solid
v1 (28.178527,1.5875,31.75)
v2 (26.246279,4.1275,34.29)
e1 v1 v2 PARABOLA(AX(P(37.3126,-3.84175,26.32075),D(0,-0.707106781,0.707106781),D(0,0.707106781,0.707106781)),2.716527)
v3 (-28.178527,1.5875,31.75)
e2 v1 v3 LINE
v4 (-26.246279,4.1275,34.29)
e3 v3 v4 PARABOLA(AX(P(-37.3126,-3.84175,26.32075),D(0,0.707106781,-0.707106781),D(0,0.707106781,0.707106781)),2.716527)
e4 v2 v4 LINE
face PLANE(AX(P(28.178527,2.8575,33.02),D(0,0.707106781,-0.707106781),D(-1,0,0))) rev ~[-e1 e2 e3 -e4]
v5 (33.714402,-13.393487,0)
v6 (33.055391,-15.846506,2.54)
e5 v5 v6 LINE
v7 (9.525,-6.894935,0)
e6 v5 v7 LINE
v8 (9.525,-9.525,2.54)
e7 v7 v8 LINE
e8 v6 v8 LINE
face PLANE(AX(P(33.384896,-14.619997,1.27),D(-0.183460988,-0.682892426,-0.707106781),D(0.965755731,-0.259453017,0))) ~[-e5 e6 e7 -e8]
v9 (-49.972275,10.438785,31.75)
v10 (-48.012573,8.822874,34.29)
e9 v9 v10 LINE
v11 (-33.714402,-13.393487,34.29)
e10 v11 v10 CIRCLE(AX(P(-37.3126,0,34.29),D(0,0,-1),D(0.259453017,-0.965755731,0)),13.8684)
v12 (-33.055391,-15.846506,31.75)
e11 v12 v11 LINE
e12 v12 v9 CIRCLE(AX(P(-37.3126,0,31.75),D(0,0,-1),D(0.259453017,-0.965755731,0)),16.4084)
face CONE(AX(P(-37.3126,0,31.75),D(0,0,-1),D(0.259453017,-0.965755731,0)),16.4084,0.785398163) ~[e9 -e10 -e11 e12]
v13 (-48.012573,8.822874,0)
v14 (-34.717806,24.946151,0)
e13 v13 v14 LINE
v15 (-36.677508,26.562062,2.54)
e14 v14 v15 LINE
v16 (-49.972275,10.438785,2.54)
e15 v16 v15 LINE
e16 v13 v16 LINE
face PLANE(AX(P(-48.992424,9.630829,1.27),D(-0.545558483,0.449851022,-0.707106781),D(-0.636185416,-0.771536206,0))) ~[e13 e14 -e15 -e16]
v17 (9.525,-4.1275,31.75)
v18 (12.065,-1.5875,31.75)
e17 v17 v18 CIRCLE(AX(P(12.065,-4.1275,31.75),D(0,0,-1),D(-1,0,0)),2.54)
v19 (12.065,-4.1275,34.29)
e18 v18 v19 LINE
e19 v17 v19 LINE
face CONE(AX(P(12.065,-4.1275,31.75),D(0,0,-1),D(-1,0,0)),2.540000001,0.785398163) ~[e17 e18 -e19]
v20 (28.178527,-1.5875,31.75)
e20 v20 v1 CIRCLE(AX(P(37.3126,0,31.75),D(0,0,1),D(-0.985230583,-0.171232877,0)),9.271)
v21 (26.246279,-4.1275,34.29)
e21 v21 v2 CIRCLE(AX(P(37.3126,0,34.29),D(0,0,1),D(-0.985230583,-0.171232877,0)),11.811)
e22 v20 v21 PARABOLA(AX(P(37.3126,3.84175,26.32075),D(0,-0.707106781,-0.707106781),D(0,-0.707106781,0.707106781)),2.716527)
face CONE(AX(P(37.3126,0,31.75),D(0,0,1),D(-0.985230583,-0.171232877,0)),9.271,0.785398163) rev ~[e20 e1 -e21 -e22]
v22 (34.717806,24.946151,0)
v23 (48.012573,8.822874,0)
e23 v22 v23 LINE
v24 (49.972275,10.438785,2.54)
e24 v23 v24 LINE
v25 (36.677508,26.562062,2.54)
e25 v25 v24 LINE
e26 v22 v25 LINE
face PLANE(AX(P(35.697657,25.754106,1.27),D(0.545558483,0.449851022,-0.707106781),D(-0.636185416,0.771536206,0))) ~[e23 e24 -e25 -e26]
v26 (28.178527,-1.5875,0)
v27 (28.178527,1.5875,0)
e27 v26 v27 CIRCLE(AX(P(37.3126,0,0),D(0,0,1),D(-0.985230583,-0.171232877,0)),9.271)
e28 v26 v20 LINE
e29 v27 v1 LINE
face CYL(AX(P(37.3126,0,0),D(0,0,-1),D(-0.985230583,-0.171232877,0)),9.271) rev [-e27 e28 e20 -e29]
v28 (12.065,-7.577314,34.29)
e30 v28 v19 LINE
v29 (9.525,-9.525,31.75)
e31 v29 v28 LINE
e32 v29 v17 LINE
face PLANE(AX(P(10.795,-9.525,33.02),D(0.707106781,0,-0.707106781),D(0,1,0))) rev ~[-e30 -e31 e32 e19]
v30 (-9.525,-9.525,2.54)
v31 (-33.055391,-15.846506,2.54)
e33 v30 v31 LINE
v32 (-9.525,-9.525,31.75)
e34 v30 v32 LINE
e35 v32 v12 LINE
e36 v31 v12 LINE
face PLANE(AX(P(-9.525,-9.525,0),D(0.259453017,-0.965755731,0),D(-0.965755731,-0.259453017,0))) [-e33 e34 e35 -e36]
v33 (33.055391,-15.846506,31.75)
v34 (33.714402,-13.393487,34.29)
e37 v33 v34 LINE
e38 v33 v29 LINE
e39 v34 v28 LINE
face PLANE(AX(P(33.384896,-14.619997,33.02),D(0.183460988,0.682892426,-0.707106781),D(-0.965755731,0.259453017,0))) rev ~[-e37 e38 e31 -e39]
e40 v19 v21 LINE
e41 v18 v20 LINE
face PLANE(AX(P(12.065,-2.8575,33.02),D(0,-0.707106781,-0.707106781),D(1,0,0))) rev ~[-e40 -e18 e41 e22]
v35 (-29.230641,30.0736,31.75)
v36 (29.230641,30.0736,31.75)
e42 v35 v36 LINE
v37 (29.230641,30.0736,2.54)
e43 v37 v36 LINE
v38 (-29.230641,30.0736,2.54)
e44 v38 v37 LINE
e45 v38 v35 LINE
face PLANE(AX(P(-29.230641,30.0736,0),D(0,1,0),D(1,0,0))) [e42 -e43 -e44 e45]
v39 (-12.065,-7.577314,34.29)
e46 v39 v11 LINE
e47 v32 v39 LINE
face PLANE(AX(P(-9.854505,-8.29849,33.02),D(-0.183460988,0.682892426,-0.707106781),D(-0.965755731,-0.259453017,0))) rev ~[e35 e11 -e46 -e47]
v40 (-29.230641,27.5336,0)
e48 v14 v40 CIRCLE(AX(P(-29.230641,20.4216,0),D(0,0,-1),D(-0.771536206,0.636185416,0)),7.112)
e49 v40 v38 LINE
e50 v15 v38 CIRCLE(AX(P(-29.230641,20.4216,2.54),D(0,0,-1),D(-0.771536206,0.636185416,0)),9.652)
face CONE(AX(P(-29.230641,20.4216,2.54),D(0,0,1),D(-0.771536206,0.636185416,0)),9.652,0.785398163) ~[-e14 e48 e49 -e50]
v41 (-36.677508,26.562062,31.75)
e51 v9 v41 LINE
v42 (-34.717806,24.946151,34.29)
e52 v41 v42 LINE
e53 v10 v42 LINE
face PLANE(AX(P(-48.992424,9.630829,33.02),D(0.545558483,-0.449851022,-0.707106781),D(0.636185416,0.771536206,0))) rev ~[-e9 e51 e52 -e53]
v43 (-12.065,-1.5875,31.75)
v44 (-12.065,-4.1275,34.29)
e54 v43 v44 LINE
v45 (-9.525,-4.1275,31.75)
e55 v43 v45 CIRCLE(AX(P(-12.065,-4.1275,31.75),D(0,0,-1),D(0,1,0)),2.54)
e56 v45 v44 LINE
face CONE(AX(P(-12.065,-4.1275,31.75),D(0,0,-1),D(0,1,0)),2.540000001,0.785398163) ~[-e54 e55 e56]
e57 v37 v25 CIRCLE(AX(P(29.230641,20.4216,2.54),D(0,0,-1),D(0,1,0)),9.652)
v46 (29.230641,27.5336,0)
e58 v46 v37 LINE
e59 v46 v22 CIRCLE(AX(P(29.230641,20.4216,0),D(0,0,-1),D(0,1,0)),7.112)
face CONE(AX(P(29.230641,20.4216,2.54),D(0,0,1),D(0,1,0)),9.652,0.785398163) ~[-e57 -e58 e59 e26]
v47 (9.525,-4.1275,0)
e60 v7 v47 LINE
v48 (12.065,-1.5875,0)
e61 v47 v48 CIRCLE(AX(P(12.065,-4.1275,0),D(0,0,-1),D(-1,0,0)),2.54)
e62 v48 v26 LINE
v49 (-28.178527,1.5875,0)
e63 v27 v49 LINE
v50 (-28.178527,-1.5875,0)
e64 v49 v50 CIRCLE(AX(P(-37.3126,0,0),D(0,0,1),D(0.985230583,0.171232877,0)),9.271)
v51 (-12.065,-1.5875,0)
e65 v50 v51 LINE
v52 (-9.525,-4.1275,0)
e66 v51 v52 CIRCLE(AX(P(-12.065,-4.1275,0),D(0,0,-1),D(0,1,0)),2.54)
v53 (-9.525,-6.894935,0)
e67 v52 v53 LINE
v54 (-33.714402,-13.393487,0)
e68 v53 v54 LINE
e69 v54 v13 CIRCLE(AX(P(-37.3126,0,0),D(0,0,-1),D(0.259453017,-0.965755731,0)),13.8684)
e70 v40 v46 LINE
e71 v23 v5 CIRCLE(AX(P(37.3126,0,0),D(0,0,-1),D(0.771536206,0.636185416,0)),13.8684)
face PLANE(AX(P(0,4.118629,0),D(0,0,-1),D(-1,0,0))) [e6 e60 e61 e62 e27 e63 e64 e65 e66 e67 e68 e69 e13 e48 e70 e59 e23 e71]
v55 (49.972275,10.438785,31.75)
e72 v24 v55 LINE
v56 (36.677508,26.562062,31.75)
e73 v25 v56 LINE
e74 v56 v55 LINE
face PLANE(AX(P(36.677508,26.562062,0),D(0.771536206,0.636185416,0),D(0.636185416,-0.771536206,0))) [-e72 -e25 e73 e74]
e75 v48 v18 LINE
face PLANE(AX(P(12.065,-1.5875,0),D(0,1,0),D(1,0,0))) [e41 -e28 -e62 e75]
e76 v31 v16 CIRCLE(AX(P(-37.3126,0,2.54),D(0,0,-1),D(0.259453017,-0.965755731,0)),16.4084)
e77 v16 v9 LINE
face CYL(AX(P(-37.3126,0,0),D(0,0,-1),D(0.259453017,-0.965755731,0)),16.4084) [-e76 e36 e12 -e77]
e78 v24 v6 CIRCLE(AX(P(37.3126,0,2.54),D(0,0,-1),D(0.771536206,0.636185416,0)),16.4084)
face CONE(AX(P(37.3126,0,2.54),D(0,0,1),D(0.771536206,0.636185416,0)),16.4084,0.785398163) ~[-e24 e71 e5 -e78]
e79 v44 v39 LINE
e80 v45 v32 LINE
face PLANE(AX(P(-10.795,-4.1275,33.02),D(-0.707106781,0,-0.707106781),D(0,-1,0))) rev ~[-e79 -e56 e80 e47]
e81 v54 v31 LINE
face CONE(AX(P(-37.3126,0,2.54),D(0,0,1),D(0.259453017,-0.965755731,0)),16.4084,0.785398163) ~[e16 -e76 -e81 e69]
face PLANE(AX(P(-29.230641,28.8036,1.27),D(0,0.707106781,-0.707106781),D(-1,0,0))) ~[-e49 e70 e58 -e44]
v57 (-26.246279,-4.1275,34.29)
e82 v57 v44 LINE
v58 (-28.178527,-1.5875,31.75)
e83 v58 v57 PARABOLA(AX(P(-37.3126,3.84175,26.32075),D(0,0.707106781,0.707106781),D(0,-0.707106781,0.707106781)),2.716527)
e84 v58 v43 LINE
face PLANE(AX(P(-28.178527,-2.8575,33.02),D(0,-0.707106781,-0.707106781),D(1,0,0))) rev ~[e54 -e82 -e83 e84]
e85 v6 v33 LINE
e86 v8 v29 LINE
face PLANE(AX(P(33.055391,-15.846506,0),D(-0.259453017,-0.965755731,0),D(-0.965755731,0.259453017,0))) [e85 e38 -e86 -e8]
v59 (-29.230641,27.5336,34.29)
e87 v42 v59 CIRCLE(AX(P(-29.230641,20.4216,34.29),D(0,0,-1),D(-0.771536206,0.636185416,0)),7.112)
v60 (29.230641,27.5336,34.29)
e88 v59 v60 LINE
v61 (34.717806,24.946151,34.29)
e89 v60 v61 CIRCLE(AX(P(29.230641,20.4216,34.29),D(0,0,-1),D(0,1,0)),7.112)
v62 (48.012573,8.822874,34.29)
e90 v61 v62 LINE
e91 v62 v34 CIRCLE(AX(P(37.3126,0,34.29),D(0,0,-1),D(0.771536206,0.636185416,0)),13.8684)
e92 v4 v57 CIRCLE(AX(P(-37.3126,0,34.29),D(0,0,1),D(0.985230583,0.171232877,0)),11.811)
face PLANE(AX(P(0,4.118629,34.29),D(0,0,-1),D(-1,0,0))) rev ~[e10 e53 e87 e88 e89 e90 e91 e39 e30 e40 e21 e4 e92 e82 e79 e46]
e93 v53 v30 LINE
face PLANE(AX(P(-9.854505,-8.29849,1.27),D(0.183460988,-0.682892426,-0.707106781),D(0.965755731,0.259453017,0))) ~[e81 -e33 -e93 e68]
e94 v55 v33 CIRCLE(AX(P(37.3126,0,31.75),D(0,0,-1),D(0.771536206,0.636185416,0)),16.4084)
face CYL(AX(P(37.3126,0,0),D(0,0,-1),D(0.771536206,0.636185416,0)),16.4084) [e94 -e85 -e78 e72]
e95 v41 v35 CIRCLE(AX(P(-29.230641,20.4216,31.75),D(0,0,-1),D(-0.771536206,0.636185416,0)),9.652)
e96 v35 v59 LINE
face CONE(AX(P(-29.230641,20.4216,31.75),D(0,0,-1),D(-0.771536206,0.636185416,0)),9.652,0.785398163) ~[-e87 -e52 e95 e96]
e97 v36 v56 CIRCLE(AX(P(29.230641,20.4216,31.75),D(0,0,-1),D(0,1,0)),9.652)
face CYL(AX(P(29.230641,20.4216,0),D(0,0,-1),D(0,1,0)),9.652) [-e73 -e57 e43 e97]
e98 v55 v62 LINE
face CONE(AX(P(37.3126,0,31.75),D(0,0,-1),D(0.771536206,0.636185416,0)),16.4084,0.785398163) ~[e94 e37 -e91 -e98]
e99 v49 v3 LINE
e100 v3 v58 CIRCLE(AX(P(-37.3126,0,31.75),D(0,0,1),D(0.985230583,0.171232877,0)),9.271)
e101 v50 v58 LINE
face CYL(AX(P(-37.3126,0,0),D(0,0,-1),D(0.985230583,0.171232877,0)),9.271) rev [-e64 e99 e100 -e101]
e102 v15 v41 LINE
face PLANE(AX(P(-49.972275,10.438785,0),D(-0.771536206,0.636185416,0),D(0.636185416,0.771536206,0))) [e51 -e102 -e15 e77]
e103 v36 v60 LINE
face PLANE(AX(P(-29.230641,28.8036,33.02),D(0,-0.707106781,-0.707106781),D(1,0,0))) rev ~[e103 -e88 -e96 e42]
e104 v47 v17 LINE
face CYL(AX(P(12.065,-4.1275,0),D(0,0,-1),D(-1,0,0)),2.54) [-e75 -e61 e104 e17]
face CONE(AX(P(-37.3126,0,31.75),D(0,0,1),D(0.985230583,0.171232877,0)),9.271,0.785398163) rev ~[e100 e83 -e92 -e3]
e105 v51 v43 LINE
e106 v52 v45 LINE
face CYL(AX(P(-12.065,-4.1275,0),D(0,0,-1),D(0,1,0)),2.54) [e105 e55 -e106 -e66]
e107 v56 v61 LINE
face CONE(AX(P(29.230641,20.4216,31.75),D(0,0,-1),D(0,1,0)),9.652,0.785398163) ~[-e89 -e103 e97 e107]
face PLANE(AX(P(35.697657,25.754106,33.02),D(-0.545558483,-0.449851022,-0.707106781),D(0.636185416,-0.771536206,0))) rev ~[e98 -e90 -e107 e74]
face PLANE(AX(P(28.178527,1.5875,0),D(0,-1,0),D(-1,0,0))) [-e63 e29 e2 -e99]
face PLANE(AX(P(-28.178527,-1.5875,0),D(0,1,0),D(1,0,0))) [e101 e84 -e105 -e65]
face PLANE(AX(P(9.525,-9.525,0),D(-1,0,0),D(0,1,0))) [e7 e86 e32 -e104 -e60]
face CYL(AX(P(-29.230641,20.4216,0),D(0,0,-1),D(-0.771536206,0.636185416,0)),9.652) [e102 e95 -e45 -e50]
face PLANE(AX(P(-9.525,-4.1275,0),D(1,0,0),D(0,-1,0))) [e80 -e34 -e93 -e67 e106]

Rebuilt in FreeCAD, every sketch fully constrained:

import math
import FreeCAD as App
import Part
import Sketcher

V = App.Vector
Q = App.Units.Quantity


def edges_at(feature, points):
    """Names of the edges that pass closest to the given points."""
    edges = feature.Shape.Edges
    near = lambda p: min(range(len(edges)), key=lambda i: edges[i].distToShape(Part.Vertex(*p))[0])
    return sorted({f"Edge{near(p) + 1}" for p in points})

doc = App.newDocument("Part")
body = doc.addObject("PartDesign::Body", "Body")

# Sketch on XY plane
sketch1 = body.newObject("Sketcher::SketchObject", "Sketch")
sketch1.AttachmentSupport = (doc.getObject("XY_Plane"), [""])
sketch1.MapMode = "FlatFace"
sketch1.addGeometry(Part.LineSegment(V(29.230641, 30.0736, 0), V(-29.230641, 30.0736, 0)), False)
sketch1.addGeometry(Part.ArcOfCircle(Part.Circle(V(-29.230641, 20.4216, 0), V(0, 0, 1), 9.652), math.radians(90), math.radians(140.49204)), False)
sketch1.addGeometry(Part.LineSegment(V(-36.677508, 26.562062, 0), V(-49.972275, 10.438785, 0)), False)
sketch1.addGeometry(Part.ArcOfCircle(Part.Circle(V(-37.3126, 0, 0), V(0, 0, 1), 16.4084), math.radians(140.49204), math.radians(285.037609)), False)
sketch1.addGeometry(Part.LineSegment(V(-33.055391, -15.846506, 0), V(-9.525, -9.525, 0)), False)
sketch1.addGeometry(Part.LineSegment(V(-9.525, -9.525, 0), V(-9.525, -4.1275, 0)), False)
sketch1.addGeometry(Part.ArcOfCircle(Part.Circle(V(-12.065, -4.1275, 0), V(0, 0, 1), 2.54), math.radians(0), math.radians(90)), False)
sketch1.addGeometry(Part.LineSegment(V(-12.065, -1.5875, 0), V(-28.178527, -1.5875, 0)), False)
sketch1.addGeometry(Part.ArcOfCircle(Part.Circle(V(-37.3126, 0, 0), V(0, 0, 1), 9.271), math.radians(9.859509), math.radians(350.140491)), False)
sketch1.addGeometry(Part.LineSegment(V(-28.178527, 1.5875, 0), V(28.178527, 1.5875, 0)), False)
sketch1.addGeometry(Part.ArcOfCircle(Part.Circle(V(37.3126, 0, 0), V(0, 0, 1), 9.271), math.radians(-170.140491), math.radians(170.140491)), False)
sketch1.addGeometry(Part.LineSegment(V(28.178527, -1.5875, 0), V(12.065, -1.5875, 0)), False)
sketch1.addGeometry(Part.ArcOfCircle(Part.Circle(V(12.065, -4.1275, 0), V(0, 0, 1), 2.54), math.radians(90), math.radians(180)), False)
sketch1.addGeometry(Part.LineSegment(V(9.525, -4.1275, 0), V(9.525, -9.525, 0)), False)
sketch1.addGeometry(Part.LineSegment(V(9.525, -9.525, 0), V(33.055391, -15.846506, 0)), False)
sketch1.addGeometry(Part.ArcOfCircle(Part.Circle(V(37.3126, 0, 0), V(0, 0, 1), 16.4084), math.radians(-105.037609), math.radians(39.50796)), False)
sketch1.addGeometry(Part.LineSegment(V(49.972275, 10.438785, 0), V(36.677508, 26.562062, 0)), False)
sketch1.addGeometry(Part.ArcOfCircle(Part.Circle(V(29.230641, 20.4216, 0), V(0, 0, 1), 9.652), math.radians(39.50796), math.radians(90)), False)
sketch1.addConstraint(Sketcher.Constraint("Tangent", 0, 2, 1, 1))
sketch1.addConstraint(Sketcher.Constraint("Tangent", 1, 2, 2, 1))
sketch1.addConstraint(Sketcher.Constraint("Tangent", 2, 2, 3, 1))
sketch1.addConstraint(Sketcher.Constraint("Tangent", 3, 2, 4, 1))
sketch1.addConstraint(Sketcher.Constraint("Coincident", 4, 2, 5, 1))
sketch1.addConstraint(Sketcher.Constraint("Tangent", 5, 2, 6, 1))
sketch1.addConstraint(Sketcher.Constraint("Tangent", 6, 2, 7, 1))
sketch1.addConstraint(Sketcher.Constraint("Coincident", 7, 2, 8, 2))
sketch1.addConstraint(Sketcher.Constraint("Coincident", 8, 1, 9, 1))
sketch1.addConstraint(Sketcher.Constraint("Coincident", 9, 2, 10, 2))
sketch1.addConstraint(Sketcher.Constraint("Coincident", 10, 1, 11, 1))
sketch1.addConstraint(Sketcher.Constraint("Tangent", 11, 2, 12, 1))
sketch1.addConstraint(Sketcher.Constraint("Tangent", 12, 2, 13, 1))
sketch1.addConstraint(Sketcher.Constraint("Coincident", 13, 2, 14, 1))
sketch1.addConstraint(Sketcher.Constraint("Tangent", 14, 2, 15, 1))
sketch1.addConstraint(Sketcher.Constraint("Tangent", 15, 2, 16, 1))
sketch1.addConstraint(Sketcher.Constraint("Tangent", 16, 2, 17, 1))
sketch1.addConstraint(Sketcher.Constraint("Tangent", 17, 2, 0, 1))
sketch1.addConstraint(Sketcher.Constraint("Horizontal", 0))
sketch1.addConstraint(Sketcher.Constraint("Vertical", 5))
sketch1.addConstraint(Sketcher.Constraint("Horizontal", 7))
sketch1.addConstraint(Sketcher.Constraint("Horizontal", 9))
sketch1.addConstraint(Sketcher.Constraint("Horizontal", 11))
sketch1.addConstraint(Sketcher.Constraint("Vertical", 13))
sketch1.addConstraint(Sketcher.Constraint("Coincident", 8, 3, 3, 3))
sketch1.addConstraint(Sketcher.Constraint("Coincident", 15, 3, 10, 3))
sketch1.addConstraint(Sketcher.Constraint("Equal", 8, 10))
sketch1.addConstraint(Sketcher.Constraint("Equal", 6, 12))
sketch1.addConstraint(Sketcher.Constraint("Equal", 3, 15))
sketch1.addConstraint(Sketcher.Constraint("Equal", 1, 17))
sketch1.addConstraint(Sketcher.Constraint("Symmetric", 3, 3, 10, 3, -1, 1))
sketch1.addConstraint(Sketcher.Constraint("Symmetric", 6, 3, 12, 3, -2))
sketch1.addConstraint(Sketcher.Constraint("Symmetric", 3, 2, 14, 2, -2))
sketch1.addConstraint(Sketcher.Constraint("Horizontal", 2, 2, 15, 2))
sketch1.addConstraint(Sketcher.Constraint("Vertical", 7, 2, 8, 1))
sketch1.addConstraint(Sketcher.Constraint("Radius", 6, Q("0.1 in")))
sketch1.addConstraint(Sketcher.Constraint("Radius", 1, Q("0.38 in")))
sketch1.addConstraint(Sketcher.Constraint("Radius", 3, Q("0.646 in")))
sketch1.addConstraint(Sketcher.Constraint("Radius", 8, Q("0.365 in")))
sketch1.addConstraint(Sketcher.Constraint("DistanceX", 6, 3, 12, 3, Q("0.95 in")))
sketch1.addConstraint(Sketcher.Constraint("DistanceY", 5, 1, 5, 2, Q("0.2125 in")))
sketch1.addConstraint(Sketcher.Constraint("DistanceY", -1, 1, 1, 3, Q("0.804 in")))
sketch1.addConstraint(Sketcher.Constraint("DistanceX", 3, 3, -1, 1, Q("1.469 in")))
sketch1.addConstraint(Sketcher.Constraint("DistanceY", 4, 2, -1, 1, Q("0.375 in")))
sketch1.addConstraint(Sketcher.Constraint("DistanceX", 0, 2, 0, 1, 58.461282))
pad1 = body.newObject("PartDesign::Pad", "Pad")
pad1.Profile = sketch1
pad1.Length = Q("1.35 in")
doc.recompute()

chamfer = body.newObject("PartDesign::Chamfer", "Chamfer")
chamfer.Base = (pad1, edges_at(pad1, [
    (33.347, 29.152, 34.29),
    (0, 30.074, 34.29),
    (-33.347, 29.152, 34.29),
    (-43.325, 18.5, 34.29),
    (-51.11, -8.88, 34.29),
    (-21.29, -12.686, 34.29),
    (-9.525, -6.826, 34.29),
    (-10.269, -2.331, 34.29),
    (-20.122, -1.587, 34.29),
    (-46.584, 0, 34.29),
    (51.11, -8.88, 34.29),
    (0, 1.587, 34.29),
    (46.584, 0, 34.29),
    (20.122, -1.587, 34.29),
    (10.269, -2.331, 34.29),
    (9.525, -6.826, 34.29),
    (21.29, -12.686, 34.29),
    (43.325, 18.5, 34.29),
]))
chamfer.Size = Q("0.1 in")
doc.recompute()

chamfer2 = body.newObject("PartDesign::Chamfer", "Chamfer001")
chamfer2.Base = (chamfer, edges_at(chamfer, [
    (21.29, -12.686, 0),
    (-21.29, -12.686, 0),
    (-51.11, -8.88, 0),
    (-43.325, 18.5, 0),
    (-33.347, 29.152, 0),
    (0, 30.074, 0),
    (33.347, 29.152, 0),
    (43.325, 18.5, 0),
    (51.11, -8.88, 0),
]))
chamfer2.Size = Q("0.1 in")

doc.recompute()
